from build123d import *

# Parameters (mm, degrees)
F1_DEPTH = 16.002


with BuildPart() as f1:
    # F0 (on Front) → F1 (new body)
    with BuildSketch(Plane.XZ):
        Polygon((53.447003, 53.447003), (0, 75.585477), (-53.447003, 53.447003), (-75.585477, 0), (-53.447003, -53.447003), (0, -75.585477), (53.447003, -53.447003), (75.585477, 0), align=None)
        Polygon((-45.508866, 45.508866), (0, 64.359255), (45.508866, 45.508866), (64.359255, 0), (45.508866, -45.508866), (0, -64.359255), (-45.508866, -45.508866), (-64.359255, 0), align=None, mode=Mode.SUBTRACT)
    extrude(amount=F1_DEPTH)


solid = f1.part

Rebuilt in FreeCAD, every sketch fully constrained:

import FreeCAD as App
import Part
import Sketcher
Q = App.Units.Quantity

doc = App.newDocument("Part")
body = doc.addObject("PartDesign::Body", "Body")

# Sketch on XZ plane
sketch1 = doc.addObject("Sketcher::SketchObject", "Sketch")
body.addObject(sketch1)
sketch1.AttachmentSupport = (doc.XZ_Plane, [""])
sketch1.MapMode = "FlatFace"
sketch1.addGeometry([
    Part.LineSegment(App.Vector(53, 53, 0), App.Vector(0, 76, 0)),  # 0
    Part.LineSegment(App.Vector(0, 76, 0), App.Vector(-53, 53, 0)),  # 1
    Part.LineSegment(App.Vector(-53, 53, 0), App.Vector(-76, 0, 0)),  # 2
    Part.LineSegment(App.Vector(-76, 0, 0), App.Vector(-53, -53, 0)),  # 3
    Part.LineSegment(App.Vector(-53, -53, 0), App.Vector(0, -76, 0)),  # 4
    Part.LineSegment(App.Vector(0, -76, 0), App.Vector(53, -53, 0)),  # 5
    Part.LineSegment(App.Vector(53, -53, 0), App.Vector(76, 0, 0)),  # 6
    Part.LineSegment(App.Vector(76, 0, 0), App.Vector(53, 53, 0)),  # 7
    Part.LineSegment(App.Vector(-64, 0, 0), App.Vector(-46, 46, 0)),  # 8
    Part.LineSegment(App.Vector(-46, 46, 0), App.Vector(0, 64, 0)),  # 9
    Part.LineSegment(App.Vector(0, 64, 0), App.Vector(46, 46, 0)),  # 10
    Part.LineSegment(App.Vector(46, 46, 0), App.Vector(64, 0, 0)),  # 11
    Part.LineSegment(App.Vector(64, 0, 0), App.Vector(46, -46, 0)),  # 12
    Part.LineSegment(App.Vector(46, -46, 0), App.Vector(0, -64, 0)),  # 13
    Part.LineSegment(App.Vector(0, -64, 0), App.Vector(-46, -46, 0)),  # 14
    Part.LineSegment(App.Vector(-46, -46, 0), App.Vector(-64, 0, 0)),  # 15
], False)
sketch1.addConstraint([
    Sketcher.Constraint("Coincident", 0, 2, 1, 1),
    Sketcher.Constraint("Coincident", 1, 2, 2, 1),
    Sketcher.Constraint("Coincident", 2, 2, 3, 1),
    Sketcher.Constraint("Coincident", 3, 2, 4, 1),
    Sketcher.Constraint("Coincident", 4, 2, 5, 1),
    Sketcher.Constraint("Coincident", 5, 2, 6, 1),
    Sketcher.Constraint("Coincident", 6, 2, 7, 1),
    Sketcher.Constraint("Coincident", 7, 2, 0, 1),
    Sketcher.Constraint("Coincident", 8, 2, 9, 1),
    Sketcher.Constraint("Coincident", 9, 2, 10, 1),
    Sketcher.Constraint("Coincident", 10, 2, 11, 1),
    Sketcher.Constraint("Coincident", 11, 2, 12, 1),
    Sketcher.Constraint("Coincident", 12, 2, 13, 1),
    Sketcher.Constraint("Coincident", 13, 2, 14, 1),
    Sketcher.Constraint("Coincident", 14, 2, 15, 1),
    Sketcher.Constraint("Coincident", 15, 2, 8, 1),
    Sketcher.Constraint("Symmetric", 0, 2, 4, 2, -1, 1),
    Sketcher.Constraint("Symmetric", 1, 2, 5, 2, -1, 1),
    Sketcher.Constraint("Symmetric", 2, 2, 6, 2, -1, 1),
    Sketcher.Constraint("Symmetric", 3, 2, 7, 2, -1, 1),
    Sketcher.Constraint("Symmetric", 8, 2, 12, 2, -1, 1),
    Sketcher.Constraint("Symmetric", 9, 2, 13, 2, -1, 1),
    Sketcher.Constraint("Symmetric", 10, 2, 14, 2, -1, 1),
    Sketcher.Constraint("Symmetric", 11, 2, 15, 2, -1, 1),
    Sketcher.Constraint("Symmetric", 3, 2, 5, 2, -2),
    Sketcher.Constraint("Symmetric", 8, 2, 10, 2, -2),
    Sketcher.Constraint("PointOnObject", 0, 2, -2),
    Sketcher.Constraint("PointOnObject", 2, 2, -1),
    Sketcher.Constraint("PointOnObject", 9, 2, -2),
    Sketcher.Constraint("PointOnObject", 11, 2, -1),
    Sketcher.Constraint("Perpendicular", 0, 2),
    Sketcher.Constraint("Parallel", 6, 8),
    Sketcher.Constraint("Perpendicular", 7, 9),
    Sketcher.Constraint("Equal", 1, 2),
    Sketcher.Constraint("Equal", 8, 9),
    Sketcher.Constraint("Angle", 0, Q("157.5 deg")),
    Sketcher.Constraint("Distance", 0, Q("57.850619 mm")),
    Sketcher.Constraint("Distance", 8, Q("49.258441 mm")),
])
pad1 = doc.addObject("PartDesign::Pad", "Pad")
body.addObject(pad1)
pad1.Profile = sketch1
pad1.Length = Q("0.63 in")

doc.recompute()
